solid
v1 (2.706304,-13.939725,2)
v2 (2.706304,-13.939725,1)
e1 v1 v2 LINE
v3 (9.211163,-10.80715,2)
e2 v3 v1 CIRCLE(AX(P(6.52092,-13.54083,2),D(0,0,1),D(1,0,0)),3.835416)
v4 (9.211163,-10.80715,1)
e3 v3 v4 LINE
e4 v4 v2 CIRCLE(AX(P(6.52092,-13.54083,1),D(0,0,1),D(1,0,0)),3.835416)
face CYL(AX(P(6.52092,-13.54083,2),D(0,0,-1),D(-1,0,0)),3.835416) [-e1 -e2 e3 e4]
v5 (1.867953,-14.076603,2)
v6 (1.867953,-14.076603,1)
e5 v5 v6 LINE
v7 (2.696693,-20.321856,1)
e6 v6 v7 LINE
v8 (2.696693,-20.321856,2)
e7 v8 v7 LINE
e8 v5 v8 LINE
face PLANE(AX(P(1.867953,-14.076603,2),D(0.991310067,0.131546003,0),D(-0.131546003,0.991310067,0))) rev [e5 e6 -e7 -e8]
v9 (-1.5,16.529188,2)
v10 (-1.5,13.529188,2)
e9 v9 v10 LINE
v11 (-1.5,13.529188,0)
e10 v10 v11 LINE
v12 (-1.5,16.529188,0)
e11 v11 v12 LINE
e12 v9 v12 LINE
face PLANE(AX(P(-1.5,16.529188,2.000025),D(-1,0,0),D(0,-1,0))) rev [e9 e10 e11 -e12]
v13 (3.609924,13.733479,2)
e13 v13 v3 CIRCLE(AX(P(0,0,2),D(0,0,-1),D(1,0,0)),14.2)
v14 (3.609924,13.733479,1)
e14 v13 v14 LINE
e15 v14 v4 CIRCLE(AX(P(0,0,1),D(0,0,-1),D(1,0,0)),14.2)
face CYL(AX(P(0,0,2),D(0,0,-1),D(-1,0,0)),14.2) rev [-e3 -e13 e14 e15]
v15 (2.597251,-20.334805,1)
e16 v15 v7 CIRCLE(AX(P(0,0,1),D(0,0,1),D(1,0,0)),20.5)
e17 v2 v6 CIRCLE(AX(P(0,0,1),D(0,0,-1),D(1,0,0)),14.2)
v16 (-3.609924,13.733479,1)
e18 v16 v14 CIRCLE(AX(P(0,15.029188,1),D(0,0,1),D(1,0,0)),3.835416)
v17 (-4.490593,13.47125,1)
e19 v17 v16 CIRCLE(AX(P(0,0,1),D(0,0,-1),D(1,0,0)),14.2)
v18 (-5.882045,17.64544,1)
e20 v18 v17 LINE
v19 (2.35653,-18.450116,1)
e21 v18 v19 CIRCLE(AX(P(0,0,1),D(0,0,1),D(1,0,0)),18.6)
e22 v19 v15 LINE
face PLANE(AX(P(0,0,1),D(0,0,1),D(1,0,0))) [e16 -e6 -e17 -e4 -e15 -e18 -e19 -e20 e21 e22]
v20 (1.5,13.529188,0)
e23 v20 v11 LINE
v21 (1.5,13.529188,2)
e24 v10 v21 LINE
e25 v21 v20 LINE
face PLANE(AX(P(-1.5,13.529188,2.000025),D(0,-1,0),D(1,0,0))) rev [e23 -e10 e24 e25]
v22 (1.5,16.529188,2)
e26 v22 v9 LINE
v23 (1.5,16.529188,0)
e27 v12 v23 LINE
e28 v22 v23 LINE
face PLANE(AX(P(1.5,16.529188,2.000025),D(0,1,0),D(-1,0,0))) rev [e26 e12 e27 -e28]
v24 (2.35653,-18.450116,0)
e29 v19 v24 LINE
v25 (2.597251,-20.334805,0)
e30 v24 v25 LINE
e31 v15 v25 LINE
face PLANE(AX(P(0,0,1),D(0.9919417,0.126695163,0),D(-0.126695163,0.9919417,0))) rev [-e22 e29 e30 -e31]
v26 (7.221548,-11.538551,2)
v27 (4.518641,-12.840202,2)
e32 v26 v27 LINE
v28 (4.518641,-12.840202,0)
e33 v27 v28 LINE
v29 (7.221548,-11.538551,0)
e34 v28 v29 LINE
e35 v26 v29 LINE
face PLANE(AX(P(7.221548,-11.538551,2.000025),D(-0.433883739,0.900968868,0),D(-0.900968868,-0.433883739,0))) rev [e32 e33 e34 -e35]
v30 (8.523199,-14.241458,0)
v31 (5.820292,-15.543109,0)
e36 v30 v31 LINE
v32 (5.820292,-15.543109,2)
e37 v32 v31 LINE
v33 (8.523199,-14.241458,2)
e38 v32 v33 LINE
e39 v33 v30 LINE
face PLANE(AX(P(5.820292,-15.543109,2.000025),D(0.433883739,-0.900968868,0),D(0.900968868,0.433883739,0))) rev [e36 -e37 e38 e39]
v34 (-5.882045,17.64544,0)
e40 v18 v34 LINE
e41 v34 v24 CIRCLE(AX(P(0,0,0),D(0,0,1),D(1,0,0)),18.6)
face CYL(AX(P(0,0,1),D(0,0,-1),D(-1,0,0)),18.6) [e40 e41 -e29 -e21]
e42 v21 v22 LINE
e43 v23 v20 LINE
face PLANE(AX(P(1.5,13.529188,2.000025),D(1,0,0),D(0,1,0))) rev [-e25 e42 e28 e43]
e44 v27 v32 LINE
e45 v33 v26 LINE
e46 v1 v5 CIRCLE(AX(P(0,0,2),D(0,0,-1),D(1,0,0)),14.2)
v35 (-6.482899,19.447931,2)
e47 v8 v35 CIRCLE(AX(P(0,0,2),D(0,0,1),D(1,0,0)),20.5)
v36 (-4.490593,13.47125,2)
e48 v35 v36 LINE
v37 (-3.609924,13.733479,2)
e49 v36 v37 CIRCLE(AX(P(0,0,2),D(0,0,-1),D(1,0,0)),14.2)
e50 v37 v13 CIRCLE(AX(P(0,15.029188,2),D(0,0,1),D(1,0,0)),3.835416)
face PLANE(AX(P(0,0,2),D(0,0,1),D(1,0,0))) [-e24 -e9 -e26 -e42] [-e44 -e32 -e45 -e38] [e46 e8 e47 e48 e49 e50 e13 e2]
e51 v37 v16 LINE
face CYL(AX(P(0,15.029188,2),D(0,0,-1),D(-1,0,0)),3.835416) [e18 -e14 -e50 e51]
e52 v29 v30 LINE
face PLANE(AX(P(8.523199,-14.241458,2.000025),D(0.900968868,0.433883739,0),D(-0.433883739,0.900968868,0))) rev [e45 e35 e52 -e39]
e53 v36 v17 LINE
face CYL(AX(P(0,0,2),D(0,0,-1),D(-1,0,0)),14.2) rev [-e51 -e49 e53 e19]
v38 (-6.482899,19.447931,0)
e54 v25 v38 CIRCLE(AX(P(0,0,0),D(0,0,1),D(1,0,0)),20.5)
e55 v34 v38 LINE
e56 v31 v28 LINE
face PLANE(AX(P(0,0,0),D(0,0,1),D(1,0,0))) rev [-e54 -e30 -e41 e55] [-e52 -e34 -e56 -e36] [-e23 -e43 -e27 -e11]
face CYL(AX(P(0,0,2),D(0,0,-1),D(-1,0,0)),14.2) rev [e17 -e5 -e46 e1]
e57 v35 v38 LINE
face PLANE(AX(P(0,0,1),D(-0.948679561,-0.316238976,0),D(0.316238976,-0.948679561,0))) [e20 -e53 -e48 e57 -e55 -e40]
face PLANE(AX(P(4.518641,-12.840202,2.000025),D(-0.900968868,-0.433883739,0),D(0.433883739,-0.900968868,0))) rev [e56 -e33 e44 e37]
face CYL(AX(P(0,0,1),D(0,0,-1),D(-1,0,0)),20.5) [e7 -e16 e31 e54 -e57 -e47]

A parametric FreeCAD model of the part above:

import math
import FreeCAD as App
import Part
import Sketcher

V = App.Vector

doc = App.newDocument("Part")
body = doc.addObject("PartDesign::Body", "Body")

sketch1 = body.newObject("Sketcher::SketchObject", "Sketch")
sketch1.AttachmentSupport = (doc.getObject("XY_Plane"), [""])
sketch1.MapMode = "FlatFace"
sketch1.addGeometry([
    Part.LineSegment(V(-6.5, 19.4, 0), V(-5.9, 17.6, 0)),
    Part.ArcOfCircle(Part.Circle(V(0, 0, 0), V(0, 0, 1), 18.6), math.radians(108), math.radians(277)),
    Part.LineSegment(V(2.4, -18.5, 0), V(2.6, -20.3, 0)),
    Part.ArcOfCircle(Part.Circle(V(0, 0, 0), V(0, 0, 1), 20.5), math.radians(-83), math.radians(108)),
], False)
sketch1.addConstraint([
    Sketcher.Constraint("Coincident", 0, 2, 1, 1),
    Sketcher.Constraint("Coincident", 1, 2, 2, 1),
    Sketcher.Constraint("Coincident", 2, 2, 3, 1),
    Sketcher.Constraint("Coincident", 3, 2, 0, 1),
    Sketcher.Constraint("Coincident", 1, 3, -1, 1),
    Sketcher.Constraint("Coincident", 3, 3, -1, 1),
    Sketcher.Constraint("Radius", 1, 18.6),
    Sketcher.Constraint("Radius", 3, 20.5),
    Sketcher.Constraint("DistanceX", 3, 2, -1, 1, 6.482899),
    Sketcher.Constraint("DistanceY", -1, 1, 0, 2, 17.64544),
    Sketcher.Constraint("DistanceX", -1, 1, 1, 2, 2.35653),
    Sketcher.Constraint("DistanceX", -1, 1, 2, 2, 2.597251),
])
pad1 = body.newObject("PartDesign::Pad", "Pad")
pad1.Profile = sketch1
pad1.Length = 1

sketch2 = body.newObject("Sketcher::SketchObject", "Sketch001")
sketch2.AttachmentSupport = (doc.getObject("XY_Plane"), [""])
sketch2.MapMode = "FlatFace"
sketch2.AttachmentOffset = App.Placement(V(0, 0, 1), App.Rotation())
sketch2.addGeometry([
    Part.LineSegment(V(-6.5, 19.4, 0), V(-4.5, 13.5, 0)),
    Part.ArcOfCircle(Part.Circle(V(0, 0, 0), V(0, 0, 1), 14.2), math.radians(104.73), math.radians(108.44)),
    Part.ArcOfCircle(Part.Circle(V(0, 15, 0), V(0, 0, 1), 3.8), math.radians(-160), math.radians(-20)),
    Part.ArcOfCircle(Part.Circle(V(0, 0, 0), V(0, 0, 1), 14.2), math.radians(-50), math.radians(75)),
    Part.ArcOfCircle(Part.Circle(V(6.5, -13.5, 0), V(0, 0, 1), 3.8), math.radians(45), math.radians(186)),
    Part.ArcOfCircle(Part.Circle(V(0, 0, 0), V(0, 0, 1), 14.2), math.radians(-82.44), math.radians(-79.01)),
    Part.LineSegment(V(1.9, -14.1, 0), V(2.7, -20.3, 0)),
    Part.ArcOfCircle(Part.Circle(V(0, 0, 0), V(0, 0, 1), 20.5), math.radians(-82), math.radians(108)),
], False)
sketch2.addConstraint([
    Sketcher.Constraint("Coincident", 0, 2, 1, 2),
    Sketcher.Constraint("Coincident", 1, 1, 2, 1),
    Sketcher.Constraint("Coincident", 2, 2, 3, 2),
    Sketcher.Constraint("Coincident", 3, 1, 4, 1),
    Sketcher.Constraint("Coincident", 4, 2, 5, 2),
    Sketcher.Constraint("Coincident", 5, 1, 6, 1),
    Sketcher.Constraint("Coincident", 6, 2, 7, 1),
    Sketcher.Constraint("Coincident", 7, 2, 0, 1),
    Sketcher.Constraint("Coincident", 1, 3, -1, 1),
    Sketcher.Constraint("Coincident", 3, 3, -1, 1),
    Sketcher.Constraint("Coincident", 5, 3, -1, 1),
    Sketcher.Constraint("Coincident", 7, 3, -1, 1),
    Sketcher.Constraint("Equal", 1, 3),
    Sketcher.Constraint("Equal", 2, 4),
    Sketcher.Constraint("Equal", 3, 5),
    Sketcher.Constraint("PointOnObject", 2, 3, -2),
    Sketcher.Constraint("Radius", 1, 14.200001),
    Sketcher.Constraint("Radius", 7, 20.5),
    Sketcher.Constraint("Radius", 2, 3.835416),
    Sketcher.Constraint("DistanceX", 7, 2, -1, 1, 6.482899),
    Sketcher.Constraint("DistanceY", 5, 1, 1, 3, 14.076602),
    Sketcher.Constraint("DistanceX", -1, 1, 4, 3, 6.52092),
    Sketcher.Constraint("DistanceY", 4, 3, -1, 1, 13.54083),
    Sketcher.Constraint("DistanceY", -1, 1, 0, 2, 13.47125),
    Sketcher.Constraint("DistanceY", -1, 1, 1, 1, 13.733479),
    Sketcher.Constraint("DistanceX", 5, 1, 6, 2, 0.82874),
])
pad2 = body.newObject("PartDesign::Pad", "Pad001")
pad2.Profile = sketch2
pad2.Length = 1

sketch3 = body.newObject("Sketcher::SketchObject", "Sketch002")
sketch3.AttachmentSupport = (doc.getObject("XY_Plane"), [""])
sketch3.MapMode = "FlatFace"
sketch3.addGeometry([
    Part.LineSegment(V(4.5, -12.8, 0), V(7.2, -11.5, 0)),
    Part.LineSegment(V(7.2, -11.5, 0), V(8.5, -14.2, 0)),
    Part.LineSegment(V(8.5, -14.2, 0), V(5.8, -15.5, 0)),
    Part.LineSegment(V(5.8, -15.5, 0), V(4.5, -12.8, 0)),
    Part.LineSegment(V(1.5, 16.5, 0), V(1.5, 13.5, 0)),
    Part.LineSegment(V(1.5, 13.5, 0), V(-1.5, 13.5, 0)),
    Part.LineSegment(V(-1.5, 13.5, 0), V(-1.5, 16.5, 0)),
    Part.LineSegment(V(-1.5, 16.5, 0), V(1.5, 16.5, 0)),
], False)
sketch3.addConstraint([
    Sketcher.Constraint("Coincident", 0, 2, 1, 1),
    Sketcher.Constraint("Coincident", 1, 2, 2, 1),
    Sketcher.Constraint("Coincident", 2, 2, 3, 1),
    Sketcher.Constraint("Coincident", 3, 2, 0, 1),
    Sketcher.Constraint("Coincident", 4, 2, 5, 1),
    Sketcher.Constraint("Coincident", 5, 2, 6, 1),
    Sketcher.Constraint("Coincident", 6, 2, 7, 1),
    Sketcher.Constraint("Coincident", 7, 2, 4, 1),
    Sketcher.Constraint("Vertical", 4),
    Sketcher.Constraint("Horizontal", 5),
    Sketcher.Constraint("Vertical", 6),
    Sketcher.Constraint("Horizontal", 7),
    Sketcher.Constraint("Perpendicular", 0, 1),
    Sketcher.Constraint("Perpendicular", 1, 2),
    Sketcher.Constraint("Perpendicular", 2, 3),
    Sketcher.Constraint("Equal", 7, 4),
    Sketcher.Constraint("Equal", 0, 1),
    Sketcher.Constraint("DistanceX", 5, 2, 5, 1, 3.0),
    Sketcher.Constraint("Distance", 0, 3.0),
    Sketcher.Constraint("DistanceX", -1, 1, 4, 2, 1.5),
    Sketcher.Constraint("DistanceX", -1, 1, 1, 2, 8.523199),
    Sketcher.Constraint("DistanceY", 0, 2, -1, 1, 11.538551),
    Sketcher.Constraint("DistanceY", 2, 2, -1, 1, 15.543109),
    Sketcher.Constraint("DistanceY", 0, 2, 4, 2, 25.067739),
])
pocket1 = body.newObject("PartDesign::Pocket", "Pocket")
pocket1.Profile = sketch3
pocket1.Type = "ThroughAll"
pocket1.Reversed = True

doc.recompute()
